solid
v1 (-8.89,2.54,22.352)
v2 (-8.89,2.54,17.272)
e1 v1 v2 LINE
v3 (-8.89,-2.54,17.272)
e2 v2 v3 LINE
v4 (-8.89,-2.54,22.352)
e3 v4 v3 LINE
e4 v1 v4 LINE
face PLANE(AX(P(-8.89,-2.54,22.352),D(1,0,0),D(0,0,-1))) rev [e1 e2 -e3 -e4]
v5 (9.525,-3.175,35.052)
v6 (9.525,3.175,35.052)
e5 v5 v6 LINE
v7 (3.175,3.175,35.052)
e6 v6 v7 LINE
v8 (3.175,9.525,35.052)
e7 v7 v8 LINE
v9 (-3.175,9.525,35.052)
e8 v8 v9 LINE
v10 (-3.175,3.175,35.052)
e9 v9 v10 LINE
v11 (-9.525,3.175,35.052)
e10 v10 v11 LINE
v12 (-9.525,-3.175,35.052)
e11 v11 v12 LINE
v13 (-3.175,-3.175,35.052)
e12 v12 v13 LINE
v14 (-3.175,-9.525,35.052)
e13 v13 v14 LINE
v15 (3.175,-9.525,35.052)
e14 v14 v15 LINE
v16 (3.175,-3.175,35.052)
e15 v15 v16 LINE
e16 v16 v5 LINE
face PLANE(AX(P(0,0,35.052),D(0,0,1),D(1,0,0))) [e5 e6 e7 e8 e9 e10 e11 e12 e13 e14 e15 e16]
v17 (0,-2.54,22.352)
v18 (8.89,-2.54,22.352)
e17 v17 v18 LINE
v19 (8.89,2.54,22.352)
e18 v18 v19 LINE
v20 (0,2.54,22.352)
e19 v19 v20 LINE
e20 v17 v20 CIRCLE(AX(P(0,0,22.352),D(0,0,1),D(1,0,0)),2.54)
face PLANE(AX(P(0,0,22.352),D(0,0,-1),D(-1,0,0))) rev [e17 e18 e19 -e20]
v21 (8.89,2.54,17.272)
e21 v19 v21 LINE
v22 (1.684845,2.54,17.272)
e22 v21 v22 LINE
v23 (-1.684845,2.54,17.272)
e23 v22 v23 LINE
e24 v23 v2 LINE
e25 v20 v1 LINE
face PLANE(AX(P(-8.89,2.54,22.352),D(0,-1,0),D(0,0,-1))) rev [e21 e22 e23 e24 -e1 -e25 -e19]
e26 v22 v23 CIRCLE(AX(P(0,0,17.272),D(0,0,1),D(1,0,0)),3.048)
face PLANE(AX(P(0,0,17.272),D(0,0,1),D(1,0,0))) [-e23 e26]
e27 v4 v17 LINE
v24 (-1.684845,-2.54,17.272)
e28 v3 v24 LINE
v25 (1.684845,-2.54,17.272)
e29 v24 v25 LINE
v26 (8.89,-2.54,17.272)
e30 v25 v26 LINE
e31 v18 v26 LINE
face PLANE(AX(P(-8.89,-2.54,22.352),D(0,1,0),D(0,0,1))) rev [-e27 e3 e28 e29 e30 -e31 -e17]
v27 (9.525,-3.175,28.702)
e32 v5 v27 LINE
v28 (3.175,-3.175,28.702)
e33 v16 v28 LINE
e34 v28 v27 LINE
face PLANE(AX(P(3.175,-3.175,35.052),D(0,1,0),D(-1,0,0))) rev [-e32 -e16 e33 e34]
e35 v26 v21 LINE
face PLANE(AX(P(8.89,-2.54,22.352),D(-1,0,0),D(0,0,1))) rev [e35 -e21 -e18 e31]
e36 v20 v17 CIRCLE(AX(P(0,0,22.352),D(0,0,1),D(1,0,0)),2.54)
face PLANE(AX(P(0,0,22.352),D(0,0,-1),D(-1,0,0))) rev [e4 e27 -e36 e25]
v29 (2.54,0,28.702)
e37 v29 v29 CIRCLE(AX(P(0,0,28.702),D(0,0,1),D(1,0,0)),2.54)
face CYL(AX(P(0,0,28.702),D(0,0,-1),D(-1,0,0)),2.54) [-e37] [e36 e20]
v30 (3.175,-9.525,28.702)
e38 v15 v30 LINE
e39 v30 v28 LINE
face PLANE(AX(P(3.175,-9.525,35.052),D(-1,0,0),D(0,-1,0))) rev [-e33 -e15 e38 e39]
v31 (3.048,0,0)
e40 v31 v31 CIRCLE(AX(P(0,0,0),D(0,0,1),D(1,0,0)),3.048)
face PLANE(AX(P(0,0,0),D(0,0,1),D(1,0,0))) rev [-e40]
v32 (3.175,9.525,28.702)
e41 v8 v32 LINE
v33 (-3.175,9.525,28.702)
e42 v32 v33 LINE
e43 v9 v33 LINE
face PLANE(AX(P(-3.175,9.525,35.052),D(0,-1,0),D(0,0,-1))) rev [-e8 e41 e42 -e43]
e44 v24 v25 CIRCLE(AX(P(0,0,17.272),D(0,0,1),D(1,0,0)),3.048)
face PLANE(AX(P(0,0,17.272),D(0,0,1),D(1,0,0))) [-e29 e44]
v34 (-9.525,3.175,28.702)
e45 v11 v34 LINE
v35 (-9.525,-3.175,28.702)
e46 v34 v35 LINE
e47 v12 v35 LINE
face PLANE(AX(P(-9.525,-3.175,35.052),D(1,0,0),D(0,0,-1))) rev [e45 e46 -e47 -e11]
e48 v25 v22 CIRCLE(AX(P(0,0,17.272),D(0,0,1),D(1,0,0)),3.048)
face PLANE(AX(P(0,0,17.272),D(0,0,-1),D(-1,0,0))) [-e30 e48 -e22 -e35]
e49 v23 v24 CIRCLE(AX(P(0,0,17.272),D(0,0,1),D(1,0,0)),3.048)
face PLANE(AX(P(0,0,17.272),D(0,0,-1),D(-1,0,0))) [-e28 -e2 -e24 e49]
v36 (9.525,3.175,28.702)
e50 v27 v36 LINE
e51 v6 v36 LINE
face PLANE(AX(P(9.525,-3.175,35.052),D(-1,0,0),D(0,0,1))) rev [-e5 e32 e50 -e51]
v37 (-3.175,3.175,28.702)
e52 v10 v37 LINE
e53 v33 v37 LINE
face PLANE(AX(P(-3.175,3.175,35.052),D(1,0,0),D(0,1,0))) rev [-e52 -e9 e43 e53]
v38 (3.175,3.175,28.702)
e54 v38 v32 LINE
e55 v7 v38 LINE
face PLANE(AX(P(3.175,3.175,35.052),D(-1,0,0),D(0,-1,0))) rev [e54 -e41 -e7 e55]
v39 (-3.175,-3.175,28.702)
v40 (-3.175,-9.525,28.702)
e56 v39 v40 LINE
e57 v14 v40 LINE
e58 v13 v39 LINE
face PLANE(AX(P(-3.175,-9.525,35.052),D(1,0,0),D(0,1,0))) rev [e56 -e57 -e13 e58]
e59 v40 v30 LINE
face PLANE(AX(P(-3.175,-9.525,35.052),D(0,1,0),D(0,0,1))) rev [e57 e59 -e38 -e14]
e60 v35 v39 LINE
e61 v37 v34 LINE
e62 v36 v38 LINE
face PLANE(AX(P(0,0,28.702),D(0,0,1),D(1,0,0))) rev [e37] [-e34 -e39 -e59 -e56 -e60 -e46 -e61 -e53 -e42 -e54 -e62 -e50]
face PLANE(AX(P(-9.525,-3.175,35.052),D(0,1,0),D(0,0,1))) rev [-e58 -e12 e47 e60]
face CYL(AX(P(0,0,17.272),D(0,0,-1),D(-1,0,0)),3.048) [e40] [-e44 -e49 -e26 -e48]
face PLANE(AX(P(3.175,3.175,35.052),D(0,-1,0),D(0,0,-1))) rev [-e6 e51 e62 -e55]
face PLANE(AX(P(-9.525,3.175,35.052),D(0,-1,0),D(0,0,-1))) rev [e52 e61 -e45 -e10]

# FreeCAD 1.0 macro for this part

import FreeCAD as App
import Part
import Sketcher
Q = App.Units.Quantity

doc = App.newDocument("Part")
body = doc.addObject("PartDesign::Body", "Body")

sketch1 = body.newObject("Sketcher::SketchObject", "Sketch")
sketch1.AttachmentSupport = (doc.getObject("XY_Plane"), [""])
sketch1.MapMode = "FlatFace"
sketch1.addGeometry(Part.Circle(App.Vector(0, 0, 0), App.Vector(0, 0, 1), 3), False)
sketch1.addConstraint(Sketcher.Constraint("Coincident", 0, 3, -1, 1))
sketch1.addConstraint(Sketcher.Constraint("Diameter", 0, Q("0.24 in")))
pad1 = body.newObject("PartDesign::Pad", "Pad")
pad1.Profile = sketch1
pad1.Length = Q("0.68 in")

sketch2 = body.newObject("Sketcher::SketchObject", "Sketch001")
sketch2.AttachmentSupport = (doc.getObject("XY_Plane"), [""])
sketch2.MapMode = "FlatFace"
sketch2.AttachmentOffset = App.Placement(App.Vector(0, 0, 0.68 * 25.4), App.Rotation())
sketch2.addGeometry(Part.LineSegment(App.Vector(-9, 3, 0), App.Vector(-9, -3, 0)), False)
sketch2.addGeometry(Part.LineSegment(App.Vector(-9, -3, 0), App.Vector(9, -3, 0)), False)
sketch2.addGeometry(Part.LineSegment(App.Vector(9, -3, 0), App.Vector(9, 3, 0)), False)
sketch2.addGeometry(Part.LineSegment(App.Vector(9, 3, 0), App.Vector(-9, 3, 0)), False)
sketch2.addConstraint(Sketcher.Constraint("Coincident", 0, 2, 1, 1))
sketch2.addConstraint(Sketcher.Constraint("Coincident", 1, 2, 2, 1))
sketch2.addConstraint(Sketcher.Constraint("Coincident", 2, 2, 3, 1))
sketch2.addConstraint(Sketcher.Constraint("Coincident", 3, 2, 0, 1))
sketch2.addConstraint(Sketcher.Constraint("Vertical", 0))
sketch2.addConstraint(Sketcher.Constraint("Horizontal", 1))
sketch2.addConstraint(Sketcher.Constraint("Vertical", 2))
sketch2.addConstraint(Sketcher.Constraint("Horizontal", 3))
sketch2.addConstraint(Sketcher.Constraint("Symmetric", 0, 2, 2, 2, -1, 1))
sketch2.addConstraint(Sketcher.Constraint("DistanceX", 1, 1, 1, 2, Q("0.7 in")))
sketch2.addConstraint(Sketcher.Constraint("DistanceY", 0, 2, 0, 1, Q("0.2 in")))
pad2 = body.newObject("PartDesign::Pad", "Pad001")
pad2.Profile = sketch2
pad2.Length = Q("0.2 in")

sketch3 = body.newObject("Sketcher::SketchObject", "Sketch002")
sketch3.AttachmentSupport = (doc.getObject("XY_Plane"), [""])
sketch3.MapMode = "FlatFace"
sketch3.AttachmentOffset = App.Placement(App.Vector(0, 0, 0.88 * 25.4), App.Rotation())
sketch3.addGeometry(Part.Circle(App.Vector(0, 0, 0), App.Vector(0, 0, 1), 2.5), False)
sketch3.addConstraint(Sketcher.Constraint("Coincident", 0, 3, -1, 1))
sketch3.addConstraint(Sketcher.Constraint("Diameter", 0, Q("0.2 in")))
pad3 = body.newObject("PartDesign::Pad", "Pad002")
pad3.Profile = sketch3
pad3.Length = Q("0.25 in")

sketch4 = body.newObject("Sketcher::SketchObject", "Sketch003")
sketch4.AttachmentSupport = (doc.getObject("XY_Plane"), [""])
sketch4.MapMode = "FlatFace"
sketch4.AttachmentOffset = App.Placement(App.Vector(0, 0, 1.13 * 25.4), App.Rotation())
sketch4.addGeometry(Part.LineSegment(App.Vector(-3, 10, 0), App.Vector(-3, 3, 0)), False)
sketch4.addGeometry(Part.LineSegment(App.Vector(-3, 3, 0), App.Vector(-10, 3, 0)), False)
sketch4.addGeometry(Part.LineSegment(App.Vector(-10, 3, 0), App.Vector(-10, -3, 0)), False)
sketch4.addGeometry(Part.LineSegment(App.Vector(-10, -3, 0), App.Vector(-3, -3, 0)), False)
sketch4.addGeometry(Part.LineSegment(App.Vector(-3, -3, 0), App.Vector(-3, -10, 0)), False)
sketch4.addGeometry(Part.LineSegment(App.Vector(-3, -10, 0), App.Vector(3, -10, 0)), False)
sketch4.addGeometry(Part.LineSegment(App.Vector(3, -10, 0), App.Vector(3, -3, 0)), False)
sketch4.addGeometry(Part.LineSegment(App.Vector(3, -3, 0), App.Vector(10, -3, 0)), False)
sketch4.addGeometry(Part.LineSegment(App.Vector(10, -3, 0), App.Vector(10, 3, 0)), False)
sketch4.addGeometry(Part.LineSegment(App.Vector(10, 3, 0), App.Vector(3, 3, 0)), False)
sketch4.addGeometry(Part.LineSegment(App.Vector(3, 3, 0), App.Vector(3, 10, 0)), False)
sketch4.addGeometry(Part.LineSegment(App.Vector(3, 10, 0), App.Vector(-3, 10, 0)), False)
sketch4.addConstraint(Sketcher.Constraint("Coincident", 0, 2, 1, 1))
sketch4.addConstraint(Sketcher.Constraint("Coincident", 1, 2, 2, 1))
sketch4.addConstraint(Sketcher.Constraint("Coincident", 2, 2, 3, 1))
sketch4.addConstraint(Sketcher.Constraint("Coincident", 3, 2, 4, 1))
sketch4.addConstraint(Sketcher.Constraint("Coincident", 4, 2, 5, 1))
sketch4.addConstraint(Sketcher.Constraint("Coincident", 5, 2, 6, 1))
sketch4.addConstraint(Sketcher.Constraint("Coincident", 6, 2, 7, 1))
sketch4.addConstraint(Sketcher.Constraint("Coincident", 7, 2, 8, 1))
sketch4.addConstraint(Sketcher.Constraint("Coincident", 8, 2, 9, 1))
sketch4.addConstraint(Sketcher.Constraint("Coincident", 9, 2, 10, 1))
sketch4.addConstraint(Sketcher.Constraint("Coincident", 10, 2, 11, 1))
sketch4.addConstraint(Sketcher.Constraint("Coincident", 11, 2, 0, 1))
sketch4.addConstraint(Sketcher.Constraint("Vertical", 0))
sketch4.addConstraint(Sketcher.Constraint("Horizontal", 1))
sketch4.addConstraint(Sketcher.Constraint("Vertical", 2))
sketch4.addConstraint(Sketcher.Constraint("Horizontal", 3))
sketch4.addConstraint(Sketcher.Constraint("Vertical", 4))
sketch4.addConstraint(Sketcher.Constraint("Horizontal", 5))
sketch4.addConstraint(Sketcher.Constraint("Vertical", 6))
sketch4.addConstraint(Sketcher.Constraint("Horizontal", 7))
sketch4.addConstraint(Sketcher.Constraint("Vertical", 8))
sketch4.addConstraint(Sketcher.Constraint("Horizontal", 9))
sketch4.addConstraint(Sketcher.Constraint("Vertical", 10))
sketch4.addConstraint(Sketcher.Constraint("Horizontal", 11))
sketch4.addConstraint(Sketcher.Constraint("Symmetric", 0, 2, 6, 2, -1, 1))
sketch4.addConstraint(Sketcher.Constraint("Symmetric", 2, 2, 8, 2, -1, 1))
sketch4.addConstraint(Sketcher.Constraint("Symmetric", 4, 2, 10, 2, -1, 1))
sketch4.addConstraint(Sketcher.Constraint("Symmetric", 3, 2, 6, 2, -2))
sketch4.addConstraint(Sketcher.Constraint("Equal", 3, 5))
sketch4.addConstraint(Sketcher.Constraint("Equal", 11, 0))
sketch4.addConstraint(Sketcher.Constraint("Equal", 0, 2))
sketch4.addConstraint(Sketcher.Constraint("DistanceX", 1, 2, 1, 1, Q("0.25 in")))
pad4 = body.newObject("PartDesign::Pad", "Pad003")
pad4.Profile = sketch4
pad4.Length = Q("0.25 in")

doc.recompute()
